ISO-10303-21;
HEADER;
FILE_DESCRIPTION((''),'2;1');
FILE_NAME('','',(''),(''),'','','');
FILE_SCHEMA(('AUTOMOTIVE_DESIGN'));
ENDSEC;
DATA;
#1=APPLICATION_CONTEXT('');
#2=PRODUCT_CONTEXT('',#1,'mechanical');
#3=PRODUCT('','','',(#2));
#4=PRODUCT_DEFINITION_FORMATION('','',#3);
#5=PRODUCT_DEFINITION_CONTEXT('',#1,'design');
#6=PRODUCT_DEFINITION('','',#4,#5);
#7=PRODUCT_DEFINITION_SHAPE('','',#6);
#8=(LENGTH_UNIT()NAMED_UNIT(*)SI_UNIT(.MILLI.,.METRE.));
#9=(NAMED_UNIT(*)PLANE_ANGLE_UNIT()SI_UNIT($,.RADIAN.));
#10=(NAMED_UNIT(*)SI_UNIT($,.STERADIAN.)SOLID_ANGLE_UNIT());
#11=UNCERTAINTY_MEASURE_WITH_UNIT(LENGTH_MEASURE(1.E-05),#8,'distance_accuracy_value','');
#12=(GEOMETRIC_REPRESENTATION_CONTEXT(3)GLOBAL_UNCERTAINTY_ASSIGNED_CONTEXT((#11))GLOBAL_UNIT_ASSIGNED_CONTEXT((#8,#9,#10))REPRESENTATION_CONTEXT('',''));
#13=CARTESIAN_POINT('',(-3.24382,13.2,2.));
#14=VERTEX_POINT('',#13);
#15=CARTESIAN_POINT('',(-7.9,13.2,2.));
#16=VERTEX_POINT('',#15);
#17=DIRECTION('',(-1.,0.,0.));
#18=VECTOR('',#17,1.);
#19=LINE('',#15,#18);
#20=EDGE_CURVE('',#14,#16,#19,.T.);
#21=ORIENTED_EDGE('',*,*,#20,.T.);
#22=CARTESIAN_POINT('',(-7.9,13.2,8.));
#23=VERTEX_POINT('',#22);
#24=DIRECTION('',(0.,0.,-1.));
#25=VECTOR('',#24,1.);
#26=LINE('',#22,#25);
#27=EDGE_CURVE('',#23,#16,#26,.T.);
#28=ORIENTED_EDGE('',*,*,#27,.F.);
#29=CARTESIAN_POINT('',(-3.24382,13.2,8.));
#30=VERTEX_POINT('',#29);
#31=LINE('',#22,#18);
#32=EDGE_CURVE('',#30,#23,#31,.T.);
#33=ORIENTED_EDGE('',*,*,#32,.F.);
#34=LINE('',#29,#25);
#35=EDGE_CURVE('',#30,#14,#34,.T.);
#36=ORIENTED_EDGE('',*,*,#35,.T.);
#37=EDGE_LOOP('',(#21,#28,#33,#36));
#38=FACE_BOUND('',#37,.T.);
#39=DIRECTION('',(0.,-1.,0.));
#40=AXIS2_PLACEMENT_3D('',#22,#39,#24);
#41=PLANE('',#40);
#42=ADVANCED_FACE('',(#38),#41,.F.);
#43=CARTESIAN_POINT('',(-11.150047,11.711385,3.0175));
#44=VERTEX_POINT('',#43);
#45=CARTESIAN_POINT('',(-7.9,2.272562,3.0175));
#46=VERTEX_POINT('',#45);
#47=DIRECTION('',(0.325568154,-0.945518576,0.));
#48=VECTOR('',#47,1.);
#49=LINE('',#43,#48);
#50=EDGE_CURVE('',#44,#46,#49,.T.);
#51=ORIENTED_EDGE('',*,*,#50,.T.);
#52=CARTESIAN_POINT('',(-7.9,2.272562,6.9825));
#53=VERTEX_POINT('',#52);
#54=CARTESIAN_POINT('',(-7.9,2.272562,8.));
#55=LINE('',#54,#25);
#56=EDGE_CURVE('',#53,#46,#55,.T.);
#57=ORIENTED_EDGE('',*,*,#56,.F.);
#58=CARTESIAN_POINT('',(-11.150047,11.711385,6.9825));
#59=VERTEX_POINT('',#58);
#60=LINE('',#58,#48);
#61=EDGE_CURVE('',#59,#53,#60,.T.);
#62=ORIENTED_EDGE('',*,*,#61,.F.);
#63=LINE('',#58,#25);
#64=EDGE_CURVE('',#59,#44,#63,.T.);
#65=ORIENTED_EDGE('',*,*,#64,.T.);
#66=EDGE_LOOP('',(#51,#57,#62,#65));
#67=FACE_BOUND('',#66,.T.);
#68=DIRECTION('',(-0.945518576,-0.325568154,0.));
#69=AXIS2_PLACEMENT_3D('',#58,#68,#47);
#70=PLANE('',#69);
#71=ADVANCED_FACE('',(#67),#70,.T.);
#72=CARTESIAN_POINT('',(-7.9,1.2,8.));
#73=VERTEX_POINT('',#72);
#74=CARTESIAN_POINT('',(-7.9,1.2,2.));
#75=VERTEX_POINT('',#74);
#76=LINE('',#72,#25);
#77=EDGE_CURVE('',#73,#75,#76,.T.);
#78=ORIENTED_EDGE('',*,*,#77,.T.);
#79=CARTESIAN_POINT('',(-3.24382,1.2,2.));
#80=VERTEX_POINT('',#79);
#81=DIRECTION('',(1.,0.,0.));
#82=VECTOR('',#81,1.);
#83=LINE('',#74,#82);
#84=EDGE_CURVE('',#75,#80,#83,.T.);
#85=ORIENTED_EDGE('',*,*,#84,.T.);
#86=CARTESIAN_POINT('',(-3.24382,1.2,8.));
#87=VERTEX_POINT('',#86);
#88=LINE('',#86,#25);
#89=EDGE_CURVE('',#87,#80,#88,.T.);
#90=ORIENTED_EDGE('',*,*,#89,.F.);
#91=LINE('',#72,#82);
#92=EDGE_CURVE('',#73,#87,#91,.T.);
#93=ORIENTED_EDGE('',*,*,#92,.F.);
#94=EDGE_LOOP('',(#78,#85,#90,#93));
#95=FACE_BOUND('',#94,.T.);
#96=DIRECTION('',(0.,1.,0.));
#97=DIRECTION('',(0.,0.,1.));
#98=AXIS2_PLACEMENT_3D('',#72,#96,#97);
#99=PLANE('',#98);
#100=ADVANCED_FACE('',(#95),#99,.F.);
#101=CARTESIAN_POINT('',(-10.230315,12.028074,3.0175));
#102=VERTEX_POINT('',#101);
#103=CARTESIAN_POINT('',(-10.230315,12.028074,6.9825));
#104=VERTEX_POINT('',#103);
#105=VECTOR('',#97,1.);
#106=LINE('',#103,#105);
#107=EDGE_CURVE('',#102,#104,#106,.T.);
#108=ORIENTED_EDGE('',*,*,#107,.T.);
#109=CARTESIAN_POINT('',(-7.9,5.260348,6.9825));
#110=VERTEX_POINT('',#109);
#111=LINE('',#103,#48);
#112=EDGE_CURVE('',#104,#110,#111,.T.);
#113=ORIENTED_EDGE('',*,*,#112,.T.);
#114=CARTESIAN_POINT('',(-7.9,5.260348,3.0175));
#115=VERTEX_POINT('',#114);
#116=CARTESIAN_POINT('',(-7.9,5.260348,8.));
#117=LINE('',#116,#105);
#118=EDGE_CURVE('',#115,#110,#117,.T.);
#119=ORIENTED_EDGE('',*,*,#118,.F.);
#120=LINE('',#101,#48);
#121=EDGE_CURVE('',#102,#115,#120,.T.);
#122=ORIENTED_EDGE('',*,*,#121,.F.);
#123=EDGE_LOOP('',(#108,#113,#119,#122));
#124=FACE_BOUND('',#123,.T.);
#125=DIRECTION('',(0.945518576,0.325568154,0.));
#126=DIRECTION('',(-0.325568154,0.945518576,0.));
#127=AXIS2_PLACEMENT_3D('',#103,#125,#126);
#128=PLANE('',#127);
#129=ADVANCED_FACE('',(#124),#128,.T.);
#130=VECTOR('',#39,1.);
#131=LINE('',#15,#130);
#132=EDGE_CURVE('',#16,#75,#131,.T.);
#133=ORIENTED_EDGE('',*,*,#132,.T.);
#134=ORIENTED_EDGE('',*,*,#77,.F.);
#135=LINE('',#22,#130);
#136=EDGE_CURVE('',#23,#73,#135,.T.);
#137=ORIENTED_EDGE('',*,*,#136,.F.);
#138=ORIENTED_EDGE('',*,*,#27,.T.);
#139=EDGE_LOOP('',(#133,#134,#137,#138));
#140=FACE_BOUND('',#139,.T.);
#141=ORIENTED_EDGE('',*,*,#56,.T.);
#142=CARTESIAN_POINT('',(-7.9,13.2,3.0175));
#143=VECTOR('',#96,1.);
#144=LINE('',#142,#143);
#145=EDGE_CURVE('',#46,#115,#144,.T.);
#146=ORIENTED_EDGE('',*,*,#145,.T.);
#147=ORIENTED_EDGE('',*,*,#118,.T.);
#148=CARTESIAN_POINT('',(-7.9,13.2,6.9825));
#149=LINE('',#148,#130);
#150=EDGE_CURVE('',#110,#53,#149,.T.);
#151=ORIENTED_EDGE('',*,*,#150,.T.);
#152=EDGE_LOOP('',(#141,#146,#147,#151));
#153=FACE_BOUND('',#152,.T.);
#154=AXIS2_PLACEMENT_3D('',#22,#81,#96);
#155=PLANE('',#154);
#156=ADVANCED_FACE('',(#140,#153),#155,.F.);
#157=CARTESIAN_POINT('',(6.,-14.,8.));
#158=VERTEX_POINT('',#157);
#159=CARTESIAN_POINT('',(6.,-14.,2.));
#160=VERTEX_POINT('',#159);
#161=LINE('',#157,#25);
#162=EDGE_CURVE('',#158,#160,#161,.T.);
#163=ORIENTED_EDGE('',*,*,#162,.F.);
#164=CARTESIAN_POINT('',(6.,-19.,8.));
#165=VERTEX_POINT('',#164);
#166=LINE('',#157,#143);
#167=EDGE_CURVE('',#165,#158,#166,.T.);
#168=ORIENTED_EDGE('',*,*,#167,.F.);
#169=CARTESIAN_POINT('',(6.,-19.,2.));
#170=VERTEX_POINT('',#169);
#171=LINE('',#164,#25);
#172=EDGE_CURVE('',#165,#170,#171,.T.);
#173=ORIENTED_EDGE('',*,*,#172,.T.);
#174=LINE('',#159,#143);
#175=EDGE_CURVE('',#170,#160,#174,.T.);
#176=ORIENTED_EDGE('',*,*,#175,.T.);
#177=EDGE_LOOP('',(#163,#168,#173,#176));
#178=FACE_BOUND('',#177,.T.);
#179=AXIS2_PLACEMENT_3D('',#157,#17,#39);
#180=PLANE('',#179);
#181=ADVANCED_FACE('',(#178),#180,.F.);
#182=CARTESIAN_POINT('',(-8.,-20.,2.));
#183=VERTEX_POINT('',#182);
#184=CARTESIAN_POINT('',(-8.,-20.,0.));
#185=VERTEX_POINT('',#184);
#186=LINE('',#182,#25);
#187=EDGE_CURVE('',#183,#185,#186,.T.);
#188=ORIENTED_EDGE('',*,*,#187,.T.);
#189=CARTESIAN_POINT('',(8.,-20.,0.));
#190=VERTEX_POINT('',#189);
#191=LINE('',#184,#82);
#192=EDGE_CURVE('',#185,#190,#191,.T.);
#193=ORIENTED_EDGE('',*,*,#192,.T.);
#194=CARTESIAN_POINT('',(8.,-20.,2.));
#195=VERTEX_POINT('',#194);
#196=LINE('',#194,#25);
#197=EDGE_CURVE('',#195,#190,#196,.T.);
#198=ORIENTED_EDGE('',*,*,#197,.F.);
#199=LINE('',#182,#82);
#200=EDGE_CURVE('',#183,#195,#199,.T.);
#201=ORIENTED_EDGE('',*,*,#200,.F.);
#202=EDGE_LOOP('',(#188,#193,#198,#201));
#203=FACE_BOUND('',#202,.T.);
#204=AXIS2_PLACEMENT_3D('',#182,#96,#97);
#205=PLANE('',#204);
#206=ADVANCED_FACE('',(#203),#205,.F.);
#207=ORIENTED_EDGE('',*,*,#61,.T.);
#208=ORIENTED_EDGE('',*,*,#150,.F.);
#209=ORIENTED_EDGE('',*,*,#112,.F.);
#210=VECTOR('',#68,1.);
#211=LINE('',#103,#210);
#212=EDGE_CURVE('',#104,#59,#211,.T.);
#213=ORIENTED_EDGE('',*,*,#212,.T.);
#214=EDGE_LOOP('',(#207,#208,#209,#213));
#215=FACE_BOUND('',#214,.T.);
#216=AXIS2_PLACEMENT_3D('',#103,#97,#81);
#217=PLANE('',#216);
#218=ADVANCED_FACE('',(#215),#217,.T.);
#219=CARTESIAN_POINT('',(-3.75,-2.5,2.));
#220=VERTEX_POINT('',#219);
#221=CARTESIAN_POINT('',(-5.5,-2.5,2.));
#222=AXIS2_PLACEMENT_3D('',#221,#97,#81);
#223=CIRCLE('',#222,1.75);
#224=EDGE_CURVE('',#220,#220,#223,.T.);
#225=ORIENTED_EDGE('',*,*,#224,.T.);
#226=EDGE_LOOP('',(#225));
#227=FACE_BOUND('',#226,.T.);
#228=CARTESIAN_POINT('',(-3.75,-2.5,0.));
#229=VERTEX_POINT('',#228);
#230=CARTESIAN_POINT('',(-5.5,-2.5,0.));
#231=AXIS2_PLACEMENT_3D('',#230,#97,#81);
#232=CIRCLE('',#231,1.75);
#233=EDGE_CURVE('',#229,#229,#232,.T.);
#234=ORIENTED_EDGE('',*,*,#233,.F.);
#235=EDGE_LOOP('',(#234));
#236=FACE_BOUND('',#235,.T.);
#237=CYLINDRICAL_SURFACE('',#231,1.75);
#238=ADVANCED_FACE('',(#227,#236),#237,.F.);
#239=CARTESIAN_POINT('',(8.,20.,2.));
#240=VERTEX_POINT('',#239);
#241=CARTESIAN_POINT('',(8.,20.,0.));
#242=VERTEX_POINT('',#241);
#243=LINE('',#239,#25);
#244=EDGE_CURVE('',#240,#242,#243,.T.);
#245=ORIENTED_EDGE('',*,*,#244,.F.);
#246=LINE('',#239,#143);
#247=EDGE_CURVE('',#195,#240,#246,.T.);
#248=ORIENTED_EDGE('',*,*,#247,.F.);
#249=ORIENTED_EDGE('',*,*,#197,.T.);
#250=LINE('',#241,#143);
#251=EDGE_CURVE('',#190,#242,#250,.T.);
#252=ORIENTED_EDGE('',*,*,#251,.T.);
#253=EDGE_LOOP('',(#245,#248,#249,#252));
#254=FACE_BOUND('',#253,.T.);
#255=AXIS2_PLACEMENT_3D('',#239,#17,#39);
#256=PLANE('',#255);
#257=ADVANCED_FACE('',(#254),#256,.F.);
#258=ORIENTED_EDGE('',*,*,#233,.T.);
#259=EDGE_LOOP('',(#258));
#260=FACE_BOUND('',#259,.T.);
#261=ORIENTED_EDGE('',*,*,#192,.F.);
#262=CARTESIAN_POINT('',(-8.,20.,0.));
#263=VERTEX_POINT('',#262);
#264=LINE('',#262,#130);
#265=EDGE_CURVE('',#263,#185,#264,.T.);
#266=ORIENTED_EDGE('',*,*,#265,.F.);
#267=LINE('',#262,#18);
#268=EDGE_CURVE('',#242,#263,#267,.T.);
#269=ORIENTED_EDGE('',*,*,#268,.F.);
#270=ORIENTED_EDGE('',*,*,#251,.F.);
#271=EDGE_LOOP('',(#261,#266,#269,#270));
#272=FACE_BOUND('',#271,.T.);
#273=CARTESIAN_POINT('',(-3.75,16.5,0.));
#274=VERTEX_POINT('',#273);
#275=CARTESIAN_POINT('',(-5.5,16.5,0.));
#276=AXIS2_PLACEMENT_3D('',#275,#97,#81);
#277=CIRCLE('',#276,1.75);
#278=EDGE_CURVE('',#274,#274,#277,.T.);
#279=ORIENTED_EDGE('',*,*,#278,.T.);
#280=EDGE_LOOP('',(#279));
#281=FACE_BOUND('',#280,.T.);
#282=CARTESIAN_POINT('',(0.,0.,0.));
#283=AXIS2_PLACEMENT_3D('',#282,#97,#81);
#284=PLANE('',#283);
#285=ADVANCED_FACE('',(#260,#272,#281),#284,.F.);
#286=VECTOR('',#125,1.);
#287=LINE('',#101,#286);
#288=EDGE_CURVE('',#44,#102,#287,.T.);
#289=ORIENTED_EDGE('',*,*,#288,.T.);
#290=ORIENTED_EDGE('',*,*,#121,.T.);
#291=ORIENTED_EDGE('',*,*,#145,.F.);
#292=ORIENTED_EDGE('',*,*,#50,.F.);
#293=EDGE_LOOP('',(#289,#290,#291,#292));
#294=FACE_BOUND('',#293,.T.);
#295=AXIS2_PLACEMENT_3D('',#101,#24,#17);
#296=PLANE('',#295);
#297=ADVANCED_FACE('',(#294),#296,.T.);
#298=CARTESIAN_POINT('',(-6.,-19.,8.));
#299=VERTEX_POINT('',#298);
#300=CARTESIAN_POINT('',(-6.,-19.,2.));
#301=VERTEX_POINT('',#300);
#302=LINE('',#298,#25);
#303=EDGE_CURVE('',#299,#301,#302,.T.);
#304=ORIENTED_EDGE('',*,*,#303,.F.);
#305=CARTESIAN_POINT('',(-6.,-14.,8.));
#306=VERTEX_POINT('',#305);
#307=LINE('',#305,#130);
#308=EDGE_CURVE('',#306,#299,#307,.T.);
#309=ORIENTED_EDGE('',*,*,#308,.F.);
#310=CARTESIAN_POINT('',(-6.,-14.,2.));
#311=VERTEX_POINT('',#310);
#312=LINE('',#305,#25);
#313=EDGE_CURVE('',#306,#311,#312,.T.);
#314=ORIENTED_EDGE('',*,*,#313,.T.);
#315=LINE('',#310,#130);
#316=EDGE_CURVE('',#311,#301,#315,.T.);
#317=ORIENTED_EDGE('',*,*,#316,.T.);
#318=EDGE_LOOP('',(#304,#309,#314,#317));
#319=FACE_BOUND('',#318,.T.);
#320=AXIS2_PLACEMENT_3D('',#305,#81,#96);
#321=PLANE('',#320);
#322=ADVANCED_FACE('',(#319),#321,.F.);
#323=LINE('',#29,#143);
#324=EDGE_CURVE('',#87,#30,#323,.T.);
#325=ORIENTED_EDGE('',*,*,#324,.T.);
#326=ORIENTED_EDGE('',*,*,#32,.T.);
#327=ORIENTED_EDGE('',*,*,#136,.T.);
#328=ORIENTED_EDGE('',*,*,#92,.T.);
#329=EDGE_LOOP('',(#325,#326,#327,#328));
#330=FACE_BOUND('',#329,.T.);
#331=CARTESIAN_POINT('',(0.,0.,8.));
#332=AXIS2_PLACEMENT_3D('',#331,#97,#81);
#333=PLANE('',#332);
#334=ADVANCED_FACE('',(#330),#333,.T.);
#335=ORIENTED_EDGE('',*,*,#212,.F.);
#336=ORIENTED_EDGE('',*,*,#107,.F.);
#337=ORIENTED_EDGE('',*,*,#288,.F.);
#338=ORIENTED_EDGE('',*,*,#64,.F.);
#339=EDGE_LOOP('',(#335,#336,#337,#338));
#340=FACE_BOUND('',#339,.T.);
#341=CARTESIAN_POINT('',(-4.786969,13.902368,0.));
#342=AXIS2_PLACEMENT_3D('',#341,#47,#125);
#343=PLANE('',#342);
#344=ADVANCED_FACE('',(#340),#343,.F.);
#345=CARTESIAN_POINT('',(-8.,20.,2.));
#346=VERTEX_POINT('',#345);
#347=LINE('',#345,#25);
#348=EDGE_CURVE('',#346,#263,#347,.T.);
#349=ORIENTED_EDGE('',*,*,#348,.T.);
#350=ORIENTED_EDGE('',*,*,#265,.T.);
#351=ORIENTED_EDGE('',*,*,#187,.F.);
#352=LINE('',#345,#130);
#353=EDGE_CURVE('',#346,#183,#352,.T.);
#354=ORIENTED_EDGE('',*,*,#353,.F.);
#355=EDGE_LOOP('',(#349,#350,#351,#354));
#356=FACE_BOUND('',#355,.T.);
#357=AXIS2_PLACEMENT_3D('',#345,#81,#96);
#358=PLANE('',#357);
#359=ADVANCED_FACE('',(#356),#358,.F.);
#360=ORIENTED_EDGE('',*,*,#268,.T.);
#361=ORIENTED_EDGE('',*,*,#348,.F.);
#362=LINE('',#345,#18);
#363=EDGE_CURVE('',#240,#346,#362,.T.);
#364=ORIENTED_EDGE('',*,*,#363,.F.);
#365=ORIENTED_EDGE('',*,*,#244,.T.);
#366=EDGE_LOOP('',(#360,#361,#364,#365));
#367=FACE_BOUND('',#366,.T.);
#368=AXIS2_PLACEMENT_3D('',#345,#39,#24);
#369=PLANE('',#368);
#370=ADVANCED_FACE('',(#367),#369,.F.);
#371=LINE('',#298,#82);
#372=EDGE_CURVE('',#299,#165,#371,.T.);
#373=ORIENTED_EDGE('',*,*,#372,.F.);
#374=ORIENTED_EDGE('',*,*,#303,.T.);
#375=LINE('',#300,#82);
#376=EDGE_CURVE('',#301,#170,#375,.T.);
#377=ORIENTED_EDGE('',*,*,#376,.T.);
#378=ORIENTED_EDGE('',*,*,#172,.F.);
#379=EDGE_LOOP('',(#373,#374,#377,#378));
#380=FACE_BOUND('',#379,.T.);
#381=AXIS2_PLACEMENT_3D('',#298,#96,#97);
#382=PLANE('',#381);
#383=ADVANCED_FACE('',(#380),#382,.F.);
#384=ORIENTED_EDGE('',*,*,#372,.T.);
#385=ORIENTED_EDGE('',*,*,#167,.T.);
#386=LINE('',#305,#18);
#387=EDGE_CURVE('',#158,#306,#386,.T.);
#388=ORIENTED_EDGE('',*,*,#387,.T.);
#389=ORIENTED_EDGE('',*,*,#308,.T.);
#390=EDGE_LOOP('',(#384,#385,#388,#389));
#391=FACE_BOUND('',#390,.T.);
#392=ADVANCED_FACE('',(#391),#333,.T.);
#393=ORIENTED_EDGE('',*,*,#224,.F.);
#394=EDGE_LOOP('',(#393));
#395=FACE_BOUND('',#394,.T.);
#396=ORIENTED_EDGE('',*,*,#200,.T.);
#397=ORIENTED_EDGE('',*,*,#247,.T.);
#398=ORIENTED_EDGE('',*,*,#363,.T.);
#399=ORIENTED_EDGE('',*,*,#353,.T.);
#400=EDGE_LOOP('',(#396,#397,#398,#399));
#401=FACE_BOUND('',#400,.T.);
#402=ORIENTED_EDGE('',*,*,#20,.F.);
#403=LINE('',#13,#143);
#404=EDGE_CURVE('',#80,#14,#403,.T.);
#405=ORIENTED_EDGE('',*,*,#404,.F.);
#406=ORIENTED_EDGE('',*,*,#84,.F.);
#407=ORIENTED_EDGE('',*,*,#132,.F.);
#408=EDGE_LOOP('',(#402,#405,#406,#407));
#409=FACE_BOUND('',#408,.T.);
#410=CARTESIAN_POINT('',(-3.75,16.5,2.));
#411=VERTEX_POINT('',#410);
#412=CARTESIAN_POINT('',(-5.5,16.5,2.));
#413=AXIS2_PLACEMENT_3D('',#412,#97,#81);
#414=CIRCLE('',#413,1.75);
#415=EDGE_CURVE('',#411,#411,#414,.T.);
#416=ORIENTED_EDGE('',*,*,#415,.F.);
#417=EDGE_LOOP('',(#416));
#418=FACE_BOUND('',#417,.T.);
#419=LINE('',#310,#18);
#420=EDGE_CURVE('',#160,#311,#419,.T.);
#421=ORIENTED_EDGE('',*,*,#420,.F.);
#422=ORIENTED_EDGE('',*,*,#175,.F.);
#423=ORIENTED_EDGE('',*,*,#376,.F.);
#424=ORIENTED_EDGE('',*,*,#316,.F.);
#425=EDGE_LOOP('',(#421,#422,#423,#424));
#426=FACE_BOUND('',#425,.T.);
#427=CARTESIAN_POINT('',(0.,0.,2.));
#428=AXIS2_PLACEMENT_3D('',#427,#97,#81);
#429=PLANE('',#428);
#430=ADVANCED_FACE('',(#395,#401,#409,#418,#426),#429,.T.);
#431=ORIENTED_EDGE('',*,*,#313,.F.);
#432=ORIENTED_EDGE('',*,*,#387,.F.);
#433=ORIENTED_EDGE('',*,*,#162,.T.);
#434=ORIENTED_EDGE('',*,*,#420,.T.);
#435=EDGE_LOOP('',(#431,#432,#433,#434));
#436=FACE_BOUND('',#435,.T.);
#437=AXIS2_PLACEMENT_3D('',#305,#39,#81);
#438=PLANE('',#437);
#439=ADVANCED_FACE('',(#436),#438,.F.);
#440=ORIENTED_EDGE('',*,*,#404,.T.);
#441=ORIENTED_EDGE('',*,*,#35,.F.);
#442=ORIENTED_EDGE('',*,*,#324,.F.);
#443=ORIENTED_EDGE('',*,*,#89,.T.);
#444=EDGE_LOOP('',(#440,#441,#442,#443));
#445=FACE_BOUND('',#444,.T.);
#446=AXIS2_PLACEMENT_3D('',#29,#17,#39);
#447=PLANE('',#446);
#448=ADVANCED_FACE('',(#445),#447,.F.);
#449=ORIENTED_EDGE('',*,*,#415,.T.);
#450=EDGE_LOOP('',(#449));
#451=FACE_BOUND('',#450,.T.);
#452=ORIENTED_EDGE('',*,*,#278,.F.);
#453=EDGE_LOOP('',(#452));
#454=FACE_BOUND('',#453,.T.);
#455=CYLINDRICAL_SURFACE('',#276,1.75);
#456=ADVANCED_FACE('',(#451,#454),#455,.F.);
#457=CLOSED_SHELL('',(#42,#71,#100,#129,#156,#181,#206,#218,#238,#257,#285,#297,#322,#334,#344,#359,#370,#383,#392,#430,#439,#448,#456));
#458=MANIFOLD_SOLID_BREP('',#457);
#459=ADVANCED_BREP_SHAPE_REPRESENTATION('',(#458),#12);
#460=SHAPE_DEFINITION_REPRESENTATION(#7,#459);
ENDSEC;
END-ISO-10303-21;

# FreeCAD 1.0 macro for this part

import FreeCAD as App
import Part
import Sketcher

V = App.Vector
Q = App.Units.Quantity


def add_polygon(sketch, points):
    """Adds a closed chain of lines whose ends are joined by coincident constraints."""
    first, n = sketch.GeometryCount, len(points)
    for a, b in zip(points, points[1:] + points[:1]):
        sketch.addGeometry(Part.LineSegment(App.Vector(*a, 0), App.Vector(*b, 0)), False)
    for i in range(n):
        sketch.addConstraint(Sketcher.Constraint("Coincident", first + i, 2, first + (i + 1) % n, 1))

doc = App.newDocument("Part")
body = doc.addObject("PartDesign::Body", "Body")

# Sketch on XY plane
sketch1 = doc.addObject("Sketcher::SketchObject", "Sketch")
body.addObject(sketch1)
sketch1.AttachmentSupport = (doc.XY_Plane, [""])
sketch1.MapMode = "FlatFace"
add_polygon(sketch1, [(-8, 20), (-8, -20), (8, -20), (8, 20)])  # lines 0-3
sketch1.addConstraint(Sketcher.Constraint("Vertical", 0))
sketch1.addConstraint(Sketcher.Constraint("Horizontal", 1))
sketch1.addConstraint(Sketcher.Constraint("Vertical", 2))
sketch1.addConstraint(Sketcher.Constraint("Horizontal", 3))
sketch1.addConstraint(Sketcher.Constraint("Symmetric", 0, 2, 2, 2, -1, 1))
sketch1.addConstraint(Sketcher.Constraint("DistanceX", 1, 1, 1, 2, Q("16 mm")))
sketch1.addConstraint(Sketcher.Constraint("DistanceY", 0, 2, 0, 1, Q("40 mm")))
pad1 = doc.addObject("PartDesign::Pad", "Pad")
body.addObject(pad1)
pad1.Profile = sketch1
pad1.Length = 2

# Sketch on XY plane
sketch2 = doc.addObject("Sketcher::SketchObject", "Sketch001")
body.addObject(sketch2)
sketch2.AttachmentSupport = (doc.XY_Plane, [""])
sketch2.MapMode = "FlatFace"
sketch2.AttachmentOffset = App.Placement(V(0, 0, 2), App.Rotation())
sketch2.addGeometry(Part.Circle(V(-5.5, 16.5, 0), V(0, 0, 1), 1.75), False)
sketch2.addGeometry(Part.Circle(V(-5.5, -2.5, 0), V(0, 0, 1), 1.75), False)
sketch2.addConstraint(Sketcher.Constraint("Equal", 0, 1))
sketch2.addConstraint(Sketcher.Constraint("Vertical", 0, 3, 1, 3))
sketch2.addConstraint(Sketcher.Constraint("Diameter", 0, Q("3.5 mm")))
sketch2.addConstraint(Sketcher.Constraint("DistanceY", 1, 3, 0, 3, Q("19 mm")))
sketch2.addConstraint(Sketcher.Constraint("DistanceX", 0, 3, -1, 1, Q("5.5 mm")))
sketch2.addConstraint(Sketcher.Constraint("DistanceY", -1, 1, 0, 3, Q("16.5 mm")))
pocket1 = doc.addObject("PartDesign::Pocket", "Pocket")
body.addObject(pocket1)
pocket1.Profile = sketch2
pocket1.Length = 2

# Sketch on XY plane
sketch3 = doc.addObject("Sketcher::SketchObject", "Sketch002")
body.addObject(sketch3)
sketch3.AttachmentSupport = (doc.XY_Plane, [""])
sketch3.MapMode = "FlatFace"
sketch3.AttachmentOffset = App.Placement(V(0, 0, 2), App.Rotation())
add_polygon(sketch3, [(-7.9, 13.2), (-7.9, 1.2), (-3.24382, 1.2), (-3.24382, 13.2)])  # lines 0-3
sketch3.addConstraint(Sketcher.Constraint("Vertical", 0))
sketch3.addConstraint(Sketcher.Constraint("Horizontal", 1))
sketch3.addConstraint(Sketcher.Constraint("Vertical", 2))
sketch3.addConstraint(Sketcher.Constraint("Horizontal", 3))
sketch3.addConstraint(Sketcher.Constraint("DistanceY", 0, 2, 0, 1, Q("12 mm")))
sketch3.addConstraint(Sketcher.Constraint("DistanceX", 0, 2, -1, 1, Q("7.9 mm")))
sketch3.addConstraint(Sketcher.Constraint("DistanceY", -1, 1, 0, 2, Q("1.2 mm")))
sketch3.addConstraint(Sketcher.Constraint("DistanceX", 1, 1, 1, 2, Q("4.65618 mm")))
pad2 = doc.addObject("PartDesign::Pad", "Pad001")
body.addObject(pad2)
pad2.Profile = sketch3
pad2.Length = 6

# Sketch on XY plane
sketch4 = doc.addObject("Sketcher::SketchObject", "Sketch003")
body.addObject(sketch4)
sketch4.AttachmentSupport = (doc.XY_Plane, [""])
sketch4.MapMode = "FlatFace"
sketch4.AttachmentOffset = App.Placement(V(0, 0, 2), App.Rotation())
add_polygon(sketch4, [(-6, -14), (-6, -19), (6, -19), (6, -14)])  # lines 0-3
sketch4.addConstraint(Sketcher.Constraint("Vertical", 0))
sketch4.addConstraint(Sketcher.Constraint("Horizontal", 1))
sketch4.addConstraint(Sketcher.Constraint("Vertical", 2))
sketch4.addConstraint(Sketcher.Constraint("Horizontal", 3))
sketch4.addConstraint(Sketcher.Constraint("DistanceX", 1, 1, 1, 2, Q("12 mm")))
sketch4.addConstraint(Sketcher.Constraint("DistanceY", 0, 2, 0, 1, Q("5 mm")))
sketch4.addConstraint(Sketcher.Constraint("DistanceX", 0, 2, -1, 1, Q("6 mm")))
sketch4.addConstraint(Sketcher.Constraint("DistanceY", 0, 2, -1, 1, Q("19 mm")))
pad3 = doc.addObject("PartDesign::Pad", "Pad002")
body.addObject(pad3)
pad3.Profile = sketch4
pad3.Length = 6

# Sketch on an angled plane
sketch5 = doc.addObject("Sketcher::SketchObject", "Sketch004")
body.addObject(sketch5)
sketch5.Placement = App.Placement(V(-4.396288, 12.767746, 0), App.Rotation(V(0, 0, -1), V(0.945518576, 0.325568154, 0), V(0.325568154, -0.945518576, 0), "ZXY"))
add_polygon(sketch5, [(-6.9825, -5.756995), (-6.9825, -6.729723), (-3.0175, -6.729723), (-3.0175, -5.756995)])  # lines 0-3
sketch5.addConstraint(Sketcher.Constraint("Vertical", 0))
sketch5.addConstraint(Sketcher.Constraint("Horizontal", 1))
sketch5.addConstraint(Sketcher.Constraint("Vertical", 2))
sketch5.addConstraint(Sketcher.Constraint("Horizontal", 3))
sketch5.addConstraint(Sketcher.Constraint("DistanceX", 1, 1, 1, 2, Q("3.965 mm")))
sketch5.addConstraint(Sketcher.Constraint("DistanceY", 0, 2, 0, 1, Q("0.972728 mm")))
sketch5.addConstraint(Sketcher.Constraint("DistanceX", 0, 2, -1, 1, Q("6.9825 mm")))
sketch5.addConstraint(Sketcher.Constraint("DistanceY", 0, 2, -1, 1, Q("6.729723 mm")))
pad4 = doc.addObject("PartDesign::Pad", "Pad003")
body.addObject(pad4)
pad4.Profile = sketch5
pad4.Type = "TwoLengths"
pad4.Length = 9
pad4.Length2 = 1.2

doc.recompute()
